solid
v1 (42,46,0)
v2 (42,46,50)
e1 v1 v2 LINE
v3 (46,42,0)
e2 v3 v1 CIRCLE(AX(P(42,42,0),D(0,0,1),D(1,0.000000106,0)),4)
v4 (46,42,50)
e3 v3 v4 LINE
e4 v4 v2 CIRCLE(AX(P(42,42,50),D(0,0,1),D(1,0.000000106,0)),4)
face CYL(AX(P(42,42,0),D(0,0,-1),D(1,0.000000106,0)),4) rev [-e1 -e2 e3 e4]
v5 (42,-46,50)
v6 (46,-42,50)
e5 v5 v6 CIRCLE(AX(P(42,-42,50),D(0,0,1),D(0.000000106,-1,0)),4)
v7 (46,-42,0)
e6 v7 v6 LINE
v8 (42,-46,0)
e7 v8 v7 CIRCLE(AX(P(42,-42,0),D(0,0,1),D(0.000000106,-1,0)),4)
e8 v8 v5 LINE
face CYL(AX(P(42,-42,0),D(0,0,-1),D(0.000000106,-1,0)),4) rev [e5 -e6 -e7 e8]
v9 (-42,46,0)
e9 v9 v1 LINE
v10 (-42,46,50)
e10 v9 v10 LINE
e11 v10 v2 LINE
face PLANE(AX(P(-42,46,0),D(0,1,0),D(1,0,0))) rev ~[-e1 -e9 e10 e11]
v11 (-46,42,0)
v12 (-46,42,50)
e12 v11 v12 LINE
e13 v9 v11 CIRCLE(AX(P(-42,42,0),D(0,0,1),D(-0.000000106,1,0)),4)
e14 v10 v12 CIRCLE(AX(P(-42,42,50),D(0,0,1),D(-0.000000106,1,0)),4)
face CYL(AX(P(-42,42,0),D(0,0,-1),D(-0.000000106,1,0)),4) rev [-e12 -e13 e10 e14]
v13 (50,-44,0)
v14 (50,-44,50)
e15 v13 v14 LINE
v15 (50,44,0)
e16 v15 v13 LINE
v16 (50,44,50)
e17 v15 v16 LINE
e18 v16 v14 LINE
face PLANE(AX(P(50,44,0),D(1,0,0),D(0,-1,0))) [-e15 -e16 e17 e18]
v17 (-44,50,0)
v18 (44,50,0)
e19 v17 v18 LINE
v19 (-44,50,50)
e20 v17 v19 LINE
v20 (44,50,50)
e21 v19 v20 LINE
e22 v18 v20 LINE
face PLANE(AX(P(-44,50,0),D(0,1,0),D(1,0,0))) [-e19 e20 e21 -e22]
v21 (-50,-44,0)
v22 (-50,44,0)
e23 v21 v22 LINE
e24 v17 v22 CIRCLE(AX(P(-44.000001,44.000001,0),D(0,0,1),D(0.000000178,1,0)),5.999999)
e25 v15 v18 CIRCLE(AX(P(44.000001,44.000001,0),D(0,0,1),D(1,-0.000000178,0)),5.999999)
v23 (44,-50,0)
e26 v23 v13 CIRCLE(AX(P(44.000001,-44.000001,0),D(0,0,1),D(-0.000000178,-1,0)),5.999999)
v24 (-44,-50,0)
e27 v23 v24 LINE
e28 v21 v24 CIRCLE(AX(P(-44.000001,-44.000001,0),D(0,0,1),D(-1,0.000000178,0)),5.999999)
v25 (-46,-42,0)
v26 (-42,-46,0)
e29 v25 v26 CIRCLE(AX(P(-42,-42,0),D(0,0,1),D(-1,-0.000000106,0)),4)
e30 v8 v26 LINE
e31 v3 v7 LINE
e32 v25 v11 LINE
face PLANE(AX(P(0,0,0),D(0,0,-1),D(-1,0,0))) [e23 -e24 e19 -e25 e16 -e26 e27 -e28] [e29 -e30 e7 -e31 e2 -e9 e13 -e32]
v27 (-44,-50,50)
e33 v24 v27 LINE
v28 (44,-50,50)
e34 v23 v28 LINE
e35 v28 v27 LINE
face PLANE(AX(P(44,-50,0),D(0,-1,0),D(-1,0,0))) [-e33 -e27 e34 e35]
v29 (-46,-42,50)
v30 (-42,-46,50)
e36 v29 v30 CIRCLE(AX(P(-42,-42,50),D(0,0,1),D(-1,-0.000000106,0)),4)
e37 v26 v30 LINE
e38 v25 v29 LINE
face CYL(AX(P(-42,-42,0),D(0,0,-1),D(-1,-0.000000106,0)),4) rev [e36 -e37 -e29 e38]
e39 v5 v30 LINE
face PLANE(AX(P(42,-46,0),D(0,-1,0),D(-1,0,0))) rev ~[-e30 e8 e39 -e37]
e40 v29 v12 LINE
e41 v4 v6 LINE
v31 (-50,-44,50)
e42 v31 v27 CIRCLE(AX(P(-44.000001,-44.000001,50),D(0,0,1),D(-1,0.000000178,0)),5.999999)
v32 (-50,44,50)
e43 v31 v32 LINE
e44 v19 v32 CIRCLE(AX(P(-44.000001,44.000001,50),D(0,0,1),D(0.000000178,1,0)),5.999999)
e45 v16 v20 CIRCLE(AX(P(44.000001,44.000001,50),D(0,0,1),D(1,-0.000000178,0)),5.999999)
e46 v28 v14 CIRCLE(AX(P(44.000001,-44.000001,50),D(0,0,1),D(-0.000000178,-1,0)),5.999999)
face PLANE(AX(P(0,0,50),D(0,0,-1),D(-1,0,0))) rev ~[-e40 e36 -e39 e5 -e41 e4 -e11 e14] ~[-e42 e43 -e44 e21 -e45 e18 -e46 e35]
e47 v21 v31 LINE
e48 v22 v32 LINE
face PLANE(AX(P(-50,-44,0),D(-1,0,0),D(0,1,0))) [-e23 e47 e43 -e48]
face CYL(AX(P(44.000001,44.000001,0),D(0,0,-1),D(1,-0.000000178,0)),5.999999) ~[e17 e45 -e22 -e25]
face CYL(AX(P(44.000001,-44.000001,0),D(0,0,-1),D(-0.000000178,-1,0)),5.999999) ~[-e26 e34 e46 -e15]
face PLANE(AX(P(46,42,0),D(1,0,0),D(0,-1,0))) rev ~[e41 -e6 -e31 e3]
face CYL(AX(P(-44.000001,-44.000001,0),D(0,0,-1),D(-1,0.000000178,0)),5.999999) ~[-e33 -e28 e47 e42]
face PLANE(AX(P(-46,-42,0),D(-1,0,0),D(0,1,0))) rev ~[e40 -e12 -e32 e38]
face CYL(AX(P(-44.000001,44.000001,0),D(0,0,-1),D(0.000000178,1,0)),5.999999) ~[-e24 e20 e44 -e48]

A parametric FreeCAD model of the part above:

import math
import FreeCAD as App
import Part
import Sketcher
Q = App.Units.Quantity

doc = App.newDocument("Part")
body = doc.addObject("PartDesign::Body", "Body")

# Sketch on XY plane
sketch1 = body.newObject("Sketcher::SketchObject", "Sketch")
sketch1.AttachmentSupport = (doc.getObject("XY_Plane"), [""])
sketch1.MapMode = "FlatFace"
sketch1.addGeometry(Part.LineSegment(App.Vector(44, 50, 0), App.Vector(-44, 50, 0)), False)
sketch1.addGeometry(Part.ArcOfCircle(Part.Circle(App.Vector(-44, 44, 0), App.Vector(0, 0, 1), 6), math.radians(90), math.radians(180)), False)
sketch1.addGeometry(Part.LineSegment(App.Vector(-50, 44, 0), App.Vector(-50, -44, 0)), False)
sketch1.addGeometry(Part.ArcOfCircle(Part.Circle(App.Vector(-44, -44, 0), App.Vector(0, 0, 1), 6), math.radians(180), math.radians(270)), False)
sketch1.addGeometry(Part.LineSegment(App.Vector(-44, -50, 0), App.Vector(44, -50, 0)), False)
sketch1.addGeometry(Part.ArcOfCircle(Part.Circle(App.Vector(44, -44, 0), App.Vector(0, 0, 1), 6), math.radians(-90), math.radians(0)), False)
sketch1.addGeometry(Part.LineSegment(App.Vector(50, -44, 0), App.Vector(50, 44, 0)), False)
sketch1.addGeometry(Part.ArcOfCircle(Part.Circle(App.Vector(44, 44, 0), App.Vector(0, 0, 1), 6), math.radians(0), math.radians(90)), False)
sketch1.addGeometry(Part.LineSegment(App.Vector(-42, 46, 0), App.Vector(42, 46, 0)), False)
sketch1.addGeometry(Part.ArcOfCircle(Part.Circle(App.Vector(42, 42, 0), App.Vector(0, 0, 1), 4), math.radians(0), math.radians(90)), False)
sketch1.addGeometry(Part.LineSegment(App.Vector(46, 42, 0), App.Vector(46, -42, 0)), False)
sketch1.addGeometry(Part.ArcOfCircle(Part.Circle(App.Vector(42, -42, 0), App.Vector(0, 0, 1), 4), math.radians(-90), math.radians(0)), False)
sketch1.addGeometry(Part.LineSegment(App.Vector(42, -46, 0), App.Vector(-42, -46, 0)), False)
sketch1.addGeometry(Part.ArcOfCircle(Part.Circle(App.Vector(-42, -42, 0), App.Vector(0, 0, 1), 4), math.radians(-180), math.radians(-90)), False)
sketch1.addGeometry(Part.LineSegment(App.Vector(-46, -42, 0), App.Vector(-46, 42, 0)), False)
sketch1.addGeometry(Part.ArcOfCircle(Part.Circle(App.Vector(-42, 42, 0), App.Vector(0, 0, 1), 4), math.radians(90), math.radians(180)), False)
sketch1.addConstraint(Sketcher.Constraint("Tangent", 0, 2, 1, 1))
sketch1.addConstraint(Sketcher.Constraint("Tangent", 1, 2, 2, 1))
sketch1.addConstraint(Sketcher.Constraint("Tangent", 2, 2, 3, 1))
sketch1.addConstraint(Sketcher.Constraint("Tangent", 3, 2, 4, 1))
sketch1.addConstraint(Sketcher.Constraint("Tangent", 4, 2, 5, 1))
sketch1.addConstraint(Sketcher.Constraint("Tangent", 5, 2, 6, 1))
sketch1.addConstraint(Sketcher.Constraint("Tangent", 6, 2, 7, 1))
sketch1.addConstraint(Sketcher.Constraint("Tangent", 7, 2, 0, 1))
sketch1.addConstraint(Sketcher.Constraint("Tangent", 8, 2, 9, 2))
sketch1.addConstraint(Sketcher.Constraint("Tangent", 9, 1, 10, 1))
sketch1.addConstraint(Sketcher.Constraint("Tangent", 10, 2, 11, 2))
sketch1.addConstraint(Sketcher.Constraint("Tangent", 11, 1, 12, 1))
sketch1.addConstraint(Sketcher.Constraint("Tangent", 12, 2, 13, 2))
sketch1.addConstraint(Sketcher.Constraint("Tangent", 13, 1, 14, 1))
sketch1.addConstraint(Sketcher.Constraint("Tangent", 14, 2, 15, 2))
sketch1.addConstraint(Sketcher.Constraint("Tangent", 15, 1, 8, 1))
sketch1.addConstraint(Sketcher.Constraint("Horizontal", 0))
sketch1.addConstraint(Sketcher.Constraint("Vertical", 2))
sketch1.addConstraint(Sketcher.Constraint("Horizontal", 4))
sketch1.addConstraint(Sketcher.Constraint("Vertical", 6))
sketch1.addConstraint(Sketcher.Constraint("Horizontal", 8))
sketch1.addConstraint(Sketcher.Constraint("Vertical", 10))
sketch1.addConstraint(Sketcher.Constraint("Horizontal", 12))
sketch1.addConstraint(Sketcher.Constraint("Vertical", 14))
sketch1.addConstraint(Sketcher.Constraint("Equal", 1, 3))
sketch1.addConstraint(Sketcher.Constraint("Equal", 3, 5))
sketch1.addConstraint(Sketcher.Constraint("Equal", 5, 7))
sketch1.addConstraint(Sketcher.Constraint("Equal", 9, 11))
sketch1.addConstraint(Sketcher.Constraint("Equal", 11, 13))
sketch1.addConstraint(Sketcher.Constraint("Equal", 13, 15))
sketch1.addConstraint(Sketcher.Constraint("Symmetric", 1, 3, 5, 3, -1, 1))
sketch1.addConstraint(Sketcher.Constraint("Symmetric", 9, 3, 13, 3, -1, 1))
sketch1.addConstraint(Sketcher.Constraint("Equal", 4, 2))
sketch1.addConstraint(Sketcher.Constraint("Equal", 12, 10))
sketch1.addConstraint(Sketcher.Constraint("Radius", 1, Q("5.999999 mm")))
sketch1.addConstraint(Sketcher.Constraint("Radius", 9, Q("4 mm")))
sketch1.addConstraint(Sketcher.Constraint("DistanceX", 0, 2, 0, 1, Q("88 mm")))
sketch1.addConstraint(Sketcher.Constraint("DistanceX", 8, 1, 8, 2, Q("84 mm")))
pad1 = body.newObject("PartDesign::Pad", "Pad")
pad1.Profile = sketch1
pad1.Length = 50

doc.recompute()
